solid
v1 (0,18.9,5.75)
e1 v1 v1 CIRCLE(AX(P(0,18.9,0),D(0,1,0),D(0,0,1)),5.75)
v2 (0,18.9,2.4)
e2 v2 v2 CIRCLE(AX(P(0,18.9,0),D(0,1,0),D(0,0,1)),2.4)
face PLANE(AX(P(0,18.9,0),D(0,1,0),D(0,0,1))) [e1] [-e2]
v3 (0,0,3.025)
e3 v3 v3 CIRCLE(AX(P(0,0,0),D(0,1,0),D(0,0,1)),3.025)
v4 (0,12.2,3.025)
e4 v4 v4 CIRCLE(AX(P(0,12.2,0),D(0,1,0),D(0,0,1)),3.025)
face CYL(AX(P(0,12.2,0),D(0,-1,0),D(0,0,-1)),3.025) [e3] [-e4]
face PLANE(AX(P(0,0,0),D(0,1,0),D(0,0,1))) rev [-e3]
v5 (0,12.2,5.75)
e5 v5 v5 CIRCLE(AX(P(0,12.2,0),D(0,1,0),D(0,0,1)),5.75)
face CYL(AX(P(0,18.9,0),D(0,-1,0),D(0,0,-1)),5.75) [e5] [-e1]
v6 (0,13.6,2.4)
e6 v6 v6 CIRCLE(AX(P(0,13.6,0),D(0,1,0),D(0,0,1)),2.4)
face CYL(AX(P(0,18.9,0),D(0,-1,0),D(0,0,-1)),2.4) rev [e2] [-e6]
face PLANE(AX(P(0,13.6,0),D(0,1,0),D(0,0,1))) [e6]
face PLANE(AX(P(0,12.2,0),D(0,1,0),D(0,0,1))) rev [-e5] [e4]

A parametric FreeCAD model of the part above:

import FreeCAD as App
import Part
import Sketcher

V = App.Vector

doc = App.newDocument("Part")
params = doc.addObject("Spreadsheet::Sheet", "Params")
for row, (alias, value) in enumerate([
    ("sketch1_diameter", "6.05 mm"),
    ("pad1_length", "12.2 mm"),
    ("sketch2_diameter", "11.5 mm"),
    ("sketch2_diameter2", "4.8 mm"),
    ("pad2_length", "6.7 mm"),
    ("sketch3_diameter", "4.8 mm"),
    ("pad3_length", "1.4 mm"),
], start=1):
    params.set(f"A{row}", alias)
    params.set(f"B{row}", "=" + value)
    params.setAlias(f"B{row}", alias)

body = doc.addObject("PartDesign::Body", "Body")

# Sketch on XZ plane
sketch1 = doc.addObject("Sketcher::SketchObject", "Sketch")
body.addObject(sketch1)
sketch1.AttachmentSupport = (doc.XZ_Plane, [""])
sketch1.MapMode = "FlatFace"
sketch1.addGeometry(Part.Circle(V(0, 0, 0), V(0, 0, 1), 3.025), False)
sketch1.addConstraint([
    Sketcher.Constraint("Coincident", 0, 3, -1, 1),
    Sketcher.Constraint("Diameter", 0, 6.05),
])
sketch1.setExpression("Constraints[1]", "Params.sketch1_diameter")
pad1 = doc.addObject("PartDesign::Pad", "Pad")
body.addObject(pad1)
pad1.Profile = sketch1
pad1.setExpression("Length", "Params.pad1_length")
pad1.Reversed = True

# Sketch on XZ plane
sketch2 = doc.addObject("Sketcher::SketchObject", "Sketch001")
body.addObject(sketch2)
sketch2.AttachmentSupport = (doc.XZ_Plane, [""])
sketch2.MapMode = "FlatFace"
sketch2.AttachmentOffset = App.Placement(V(0, 0, -12.2), App.Rotation())
sketch2.addGeometry([
    Part.Circle(V(0, 0, 0), V(0, 0, 1), 5.75),
    Part.Circle(V(0, 0, 0), V(0, 0, 1), 2.4),
], False)
sketch2.addConstraint([
    Sketcher.Constraint("Coincident", 0, 3, -1, 1),
    Sketcher.Constraint("Coincident", 1, 3, -1, 1),
    Sketcher.Constraint("Diameter", 0, 11.5),
    Sketcher.Constraint("Diameter", 1, 4.8),
])
sketch2.setExpression("Constraints[2]", "Params.sketch2_diameter")
sketch2.setExpression("Constraints[3]", "Params.sketch2_diameter2")
pad2 = doc.addObject("PartDesign::Pad", "Pad001")
body.addObject(pad2)
pad2.Profile = sketch2
pad2.setExpression("Length", "Params.pad2_length")
pad2.Reversed = True

# Sketch on XZ plane
sketch3 = doc.addObject("Sketcher::SketchObject", "Sketch002")
body.addObject(sketch3)
sketch3.AttachmentSupport = (doc.XZ_Plane, [""])
sketch3.MapMode = "FlatFace"
sketch3.AttachmentOffset = App.Placement(V(0, 0, -12.2), App.Rotation())
sketch3.addGeometry(Part.Circle(V(0, 0, 0), V(0, 0, 1), 2.4), False)
sketch3.addConstraint([
    Sketcher.Constraint("Coincident", 0, 3, -1, 1),
    Sketcher.Constraint("Diameter", 0, 4.8),
])
sketch3.setExpression("Constraints[1]", "Params.sketch3_diameter")
pad3 = doc.addObject("PartDesign::Pad", "Pad002")
body.addObject(pad3)
pad3.Profile = sketch3
pad3.setExpression("Length", "Params.pad3_length")
pad3.Reversed = True

doc.recompute()
